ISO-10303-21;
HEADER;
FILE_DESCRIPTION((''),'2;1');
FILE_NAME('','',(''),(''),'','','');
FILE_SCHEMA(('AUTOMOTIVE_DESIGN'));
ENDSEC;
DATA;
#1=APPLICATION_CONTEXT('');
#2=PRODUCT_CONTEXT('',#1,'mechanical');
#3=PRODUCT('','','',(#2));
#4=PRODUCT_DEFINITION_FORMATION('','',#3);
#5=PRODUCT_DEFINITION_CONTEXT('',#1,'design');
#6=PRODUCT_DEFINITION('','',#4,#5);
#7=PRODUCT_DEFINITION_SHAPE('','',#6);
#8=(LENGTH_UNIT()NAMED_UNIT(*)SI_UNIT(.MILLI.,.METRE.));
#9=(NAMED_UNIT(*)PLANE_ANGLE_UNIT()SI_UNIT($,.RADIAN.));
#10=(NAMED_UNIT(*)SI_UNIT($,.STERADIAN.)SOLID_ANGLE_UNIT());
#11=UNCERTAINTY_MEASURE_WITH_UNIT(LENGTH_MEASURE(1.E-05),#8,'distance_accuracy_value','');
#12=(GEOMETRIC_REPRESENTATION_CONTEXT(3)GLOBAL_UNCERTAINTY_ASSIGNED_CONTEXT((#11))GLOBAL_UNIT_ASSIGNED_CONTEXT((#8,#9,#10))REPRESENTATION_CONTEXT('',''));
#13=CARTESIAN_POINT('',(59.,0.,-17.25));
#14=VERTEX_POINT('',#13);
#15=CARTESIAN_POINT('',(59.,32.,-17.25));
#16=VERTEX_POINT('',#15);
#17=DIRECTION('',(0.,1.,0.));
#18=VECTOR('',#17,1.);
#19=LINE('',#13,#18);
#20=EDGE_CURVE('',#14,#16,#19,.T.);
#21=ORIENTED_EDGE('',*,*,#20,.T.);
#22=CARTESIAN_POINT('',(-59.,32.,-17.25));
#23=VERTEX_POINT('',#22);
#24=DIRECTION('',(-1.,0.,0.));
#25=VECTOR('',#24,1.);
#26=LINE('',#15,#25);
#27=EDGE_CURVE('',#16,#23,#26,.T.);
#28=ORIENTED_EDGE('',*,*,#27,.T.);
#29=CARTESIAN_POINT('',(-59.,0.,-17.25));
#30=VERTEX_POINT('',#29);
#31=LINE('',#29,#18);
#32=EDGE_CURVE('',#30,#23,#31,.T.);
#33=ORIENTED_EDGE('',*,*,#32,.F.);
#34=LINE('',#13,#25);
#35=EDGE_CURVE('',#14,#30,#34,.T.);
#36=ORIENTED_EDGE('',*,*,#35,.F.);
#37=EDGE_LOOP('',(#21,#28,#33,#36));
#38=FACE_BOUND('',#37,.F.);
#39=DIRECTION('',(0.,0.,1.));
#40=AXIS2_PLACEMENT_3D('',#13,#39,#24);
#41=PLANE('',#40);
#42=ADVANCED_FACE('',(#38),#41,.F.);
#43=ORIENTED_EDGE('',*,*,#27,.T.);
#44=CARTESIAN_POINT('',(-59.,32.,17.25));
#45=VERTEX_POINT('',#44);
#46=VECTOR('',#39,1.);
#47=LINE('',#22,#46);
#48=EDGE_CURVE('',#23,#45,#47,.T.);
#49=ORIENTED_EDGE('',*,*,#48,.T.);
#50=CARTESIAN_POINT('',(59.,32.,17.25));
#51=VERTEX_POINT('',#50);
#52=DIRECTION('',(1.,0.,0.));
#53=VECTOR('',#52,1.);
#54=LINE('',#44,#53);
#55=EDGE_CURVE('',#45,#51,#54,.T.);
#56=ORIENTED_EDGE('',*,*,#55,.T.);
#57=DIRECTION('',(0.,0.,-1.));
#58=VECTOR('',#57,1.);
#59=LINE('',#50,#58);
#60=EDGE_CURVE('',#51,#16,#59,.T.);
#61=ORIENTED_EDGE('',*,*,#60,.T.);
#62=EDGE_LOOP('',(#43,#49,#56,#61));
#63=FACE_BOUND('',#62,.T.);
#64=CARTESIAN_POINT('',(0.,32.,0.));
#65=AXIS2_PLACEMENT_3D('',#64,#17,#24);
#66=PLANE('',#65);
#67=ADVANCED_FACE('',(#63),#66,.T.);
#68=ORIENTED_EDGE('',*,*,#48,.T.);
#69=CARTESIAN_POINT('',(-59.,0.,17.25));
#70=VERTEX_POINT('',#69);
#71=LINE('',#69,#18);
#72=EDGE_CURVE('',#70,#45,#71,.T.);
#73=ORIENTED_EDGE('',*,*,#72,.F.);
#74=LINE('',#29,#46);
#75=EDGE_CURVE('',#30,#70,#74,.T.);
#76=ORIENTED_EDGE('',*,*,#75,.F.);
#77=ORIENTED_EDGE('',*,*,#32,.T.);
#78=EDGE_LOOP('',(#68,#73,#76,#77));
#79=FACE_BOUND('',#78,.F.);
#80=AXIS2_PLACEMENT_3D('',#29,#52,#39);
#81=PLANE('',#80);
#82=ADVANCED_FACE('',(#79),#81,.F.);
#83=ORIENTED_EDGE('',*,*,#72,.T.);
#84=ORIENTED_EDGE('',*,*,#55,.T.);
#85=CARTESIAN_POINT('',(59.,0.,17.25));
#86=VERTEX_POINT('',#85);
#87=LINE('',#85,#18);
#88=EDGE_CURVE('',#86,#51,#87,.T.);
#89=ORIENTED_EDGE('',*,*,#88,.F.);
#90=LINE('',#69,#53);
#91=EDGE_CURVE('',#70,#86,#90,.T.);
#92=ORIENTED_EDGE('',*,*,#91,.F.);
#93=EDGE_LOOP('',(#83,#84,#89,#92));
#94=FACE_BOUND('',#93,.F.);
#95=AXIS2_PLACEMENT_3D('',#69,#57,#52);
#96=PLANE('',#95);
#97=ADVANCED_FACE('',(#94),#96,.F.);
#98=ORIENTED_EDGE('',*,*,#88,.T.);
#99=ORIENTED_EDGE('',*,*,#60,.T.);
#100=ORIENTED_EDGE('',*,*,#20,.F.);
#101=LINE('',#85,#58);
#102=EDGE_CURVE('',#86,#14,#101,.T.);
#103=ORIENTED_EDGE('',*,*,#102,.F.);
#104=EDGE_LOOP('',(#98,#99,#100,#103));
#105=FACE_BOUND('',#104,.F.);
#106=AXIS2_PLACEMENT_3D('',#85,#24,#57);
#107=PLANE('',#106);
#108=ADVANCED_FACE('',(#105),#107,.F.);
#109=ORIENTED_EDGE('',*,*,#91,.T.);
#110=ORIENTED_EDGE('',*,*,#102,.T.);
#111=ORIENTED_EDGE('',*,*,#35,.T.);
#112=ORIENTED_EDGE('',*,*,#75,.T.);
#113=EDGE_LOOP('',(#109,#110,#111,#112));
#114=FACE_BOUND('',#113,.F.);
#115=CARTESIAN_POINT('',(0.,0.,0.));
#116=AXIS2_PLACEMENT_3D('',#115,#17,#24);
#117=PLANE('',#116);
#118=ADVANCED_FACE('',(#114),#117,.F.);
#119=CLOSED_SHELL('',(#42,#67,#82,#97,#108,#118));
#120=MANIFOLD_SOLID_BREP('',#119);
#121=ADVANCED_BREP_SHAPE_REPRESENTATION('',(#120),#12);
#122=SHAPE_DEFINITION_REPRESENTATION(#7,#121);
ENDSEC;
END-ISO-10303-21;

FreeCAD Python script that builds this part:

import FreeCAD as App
import Part
import Sketcher

doc = App.newDocument("Part")
body = doc.addObject("PartDesign::Body", "Body")

# Sketch on XZ plane
sketch1 = body.newObject("Sketcher::SketchObject", "Sketch")
sketch1.AttachmentSupport = (doc.getObject("XZ_Plane"), [""])
sketch1.MapMode = "FlatFace"
sketch1.addGeometry([
    Part.LineSegment(App.Vector(-59, -17, 0), App.Vector(-59, 17, 0)),
    Part.LineSegment(App.Vector(-59, 17, 0), App.Vector(59, 17, 0)),
    Part.LineSegment(App.Vector(59, 17, 0), App.Vector(59, -17, 0)),
    Part.LineSegment(App.Vector(59, -17, 0), App.Vector(-59, -17, 0)),
], False)
sketch1.addConstraint([
    Sketcher.Constraint("Coincident", 0, 2, 1, 1),
    Sketcher.Constraint("Coincident", 1, 2, 2, 1),
    Sketcher.Constraint("Coincident", 2, 2, 3, 1),
    Sketcher.Constraint("Coincident", 3, 2, 0, 1),
    Sketcher.Constraint("Vertical", 0),
    Sketcher.Constraint("Horizontal", 1),
    Sketcher.Constraint("Vertical", 2),
    Sketcher.Constraint("Horizontal", 3),
    Sketcher.Constraint("Symmetric", 0, 2, 2, 2, -1, 1),
    Sketcher.Constraint("DistanceX", 1, 1, 1, 2, 118.0),
    Sketcher.Constraint("DistanceY", 0, 1, 0, 2, 34.5),
])
pad1 = body.newObject("PartDesign::Pad", "Pad")
pad1.Profile = sketch1
pad1.Length = 32
pad1.Reversed = True

doc.recompute()
